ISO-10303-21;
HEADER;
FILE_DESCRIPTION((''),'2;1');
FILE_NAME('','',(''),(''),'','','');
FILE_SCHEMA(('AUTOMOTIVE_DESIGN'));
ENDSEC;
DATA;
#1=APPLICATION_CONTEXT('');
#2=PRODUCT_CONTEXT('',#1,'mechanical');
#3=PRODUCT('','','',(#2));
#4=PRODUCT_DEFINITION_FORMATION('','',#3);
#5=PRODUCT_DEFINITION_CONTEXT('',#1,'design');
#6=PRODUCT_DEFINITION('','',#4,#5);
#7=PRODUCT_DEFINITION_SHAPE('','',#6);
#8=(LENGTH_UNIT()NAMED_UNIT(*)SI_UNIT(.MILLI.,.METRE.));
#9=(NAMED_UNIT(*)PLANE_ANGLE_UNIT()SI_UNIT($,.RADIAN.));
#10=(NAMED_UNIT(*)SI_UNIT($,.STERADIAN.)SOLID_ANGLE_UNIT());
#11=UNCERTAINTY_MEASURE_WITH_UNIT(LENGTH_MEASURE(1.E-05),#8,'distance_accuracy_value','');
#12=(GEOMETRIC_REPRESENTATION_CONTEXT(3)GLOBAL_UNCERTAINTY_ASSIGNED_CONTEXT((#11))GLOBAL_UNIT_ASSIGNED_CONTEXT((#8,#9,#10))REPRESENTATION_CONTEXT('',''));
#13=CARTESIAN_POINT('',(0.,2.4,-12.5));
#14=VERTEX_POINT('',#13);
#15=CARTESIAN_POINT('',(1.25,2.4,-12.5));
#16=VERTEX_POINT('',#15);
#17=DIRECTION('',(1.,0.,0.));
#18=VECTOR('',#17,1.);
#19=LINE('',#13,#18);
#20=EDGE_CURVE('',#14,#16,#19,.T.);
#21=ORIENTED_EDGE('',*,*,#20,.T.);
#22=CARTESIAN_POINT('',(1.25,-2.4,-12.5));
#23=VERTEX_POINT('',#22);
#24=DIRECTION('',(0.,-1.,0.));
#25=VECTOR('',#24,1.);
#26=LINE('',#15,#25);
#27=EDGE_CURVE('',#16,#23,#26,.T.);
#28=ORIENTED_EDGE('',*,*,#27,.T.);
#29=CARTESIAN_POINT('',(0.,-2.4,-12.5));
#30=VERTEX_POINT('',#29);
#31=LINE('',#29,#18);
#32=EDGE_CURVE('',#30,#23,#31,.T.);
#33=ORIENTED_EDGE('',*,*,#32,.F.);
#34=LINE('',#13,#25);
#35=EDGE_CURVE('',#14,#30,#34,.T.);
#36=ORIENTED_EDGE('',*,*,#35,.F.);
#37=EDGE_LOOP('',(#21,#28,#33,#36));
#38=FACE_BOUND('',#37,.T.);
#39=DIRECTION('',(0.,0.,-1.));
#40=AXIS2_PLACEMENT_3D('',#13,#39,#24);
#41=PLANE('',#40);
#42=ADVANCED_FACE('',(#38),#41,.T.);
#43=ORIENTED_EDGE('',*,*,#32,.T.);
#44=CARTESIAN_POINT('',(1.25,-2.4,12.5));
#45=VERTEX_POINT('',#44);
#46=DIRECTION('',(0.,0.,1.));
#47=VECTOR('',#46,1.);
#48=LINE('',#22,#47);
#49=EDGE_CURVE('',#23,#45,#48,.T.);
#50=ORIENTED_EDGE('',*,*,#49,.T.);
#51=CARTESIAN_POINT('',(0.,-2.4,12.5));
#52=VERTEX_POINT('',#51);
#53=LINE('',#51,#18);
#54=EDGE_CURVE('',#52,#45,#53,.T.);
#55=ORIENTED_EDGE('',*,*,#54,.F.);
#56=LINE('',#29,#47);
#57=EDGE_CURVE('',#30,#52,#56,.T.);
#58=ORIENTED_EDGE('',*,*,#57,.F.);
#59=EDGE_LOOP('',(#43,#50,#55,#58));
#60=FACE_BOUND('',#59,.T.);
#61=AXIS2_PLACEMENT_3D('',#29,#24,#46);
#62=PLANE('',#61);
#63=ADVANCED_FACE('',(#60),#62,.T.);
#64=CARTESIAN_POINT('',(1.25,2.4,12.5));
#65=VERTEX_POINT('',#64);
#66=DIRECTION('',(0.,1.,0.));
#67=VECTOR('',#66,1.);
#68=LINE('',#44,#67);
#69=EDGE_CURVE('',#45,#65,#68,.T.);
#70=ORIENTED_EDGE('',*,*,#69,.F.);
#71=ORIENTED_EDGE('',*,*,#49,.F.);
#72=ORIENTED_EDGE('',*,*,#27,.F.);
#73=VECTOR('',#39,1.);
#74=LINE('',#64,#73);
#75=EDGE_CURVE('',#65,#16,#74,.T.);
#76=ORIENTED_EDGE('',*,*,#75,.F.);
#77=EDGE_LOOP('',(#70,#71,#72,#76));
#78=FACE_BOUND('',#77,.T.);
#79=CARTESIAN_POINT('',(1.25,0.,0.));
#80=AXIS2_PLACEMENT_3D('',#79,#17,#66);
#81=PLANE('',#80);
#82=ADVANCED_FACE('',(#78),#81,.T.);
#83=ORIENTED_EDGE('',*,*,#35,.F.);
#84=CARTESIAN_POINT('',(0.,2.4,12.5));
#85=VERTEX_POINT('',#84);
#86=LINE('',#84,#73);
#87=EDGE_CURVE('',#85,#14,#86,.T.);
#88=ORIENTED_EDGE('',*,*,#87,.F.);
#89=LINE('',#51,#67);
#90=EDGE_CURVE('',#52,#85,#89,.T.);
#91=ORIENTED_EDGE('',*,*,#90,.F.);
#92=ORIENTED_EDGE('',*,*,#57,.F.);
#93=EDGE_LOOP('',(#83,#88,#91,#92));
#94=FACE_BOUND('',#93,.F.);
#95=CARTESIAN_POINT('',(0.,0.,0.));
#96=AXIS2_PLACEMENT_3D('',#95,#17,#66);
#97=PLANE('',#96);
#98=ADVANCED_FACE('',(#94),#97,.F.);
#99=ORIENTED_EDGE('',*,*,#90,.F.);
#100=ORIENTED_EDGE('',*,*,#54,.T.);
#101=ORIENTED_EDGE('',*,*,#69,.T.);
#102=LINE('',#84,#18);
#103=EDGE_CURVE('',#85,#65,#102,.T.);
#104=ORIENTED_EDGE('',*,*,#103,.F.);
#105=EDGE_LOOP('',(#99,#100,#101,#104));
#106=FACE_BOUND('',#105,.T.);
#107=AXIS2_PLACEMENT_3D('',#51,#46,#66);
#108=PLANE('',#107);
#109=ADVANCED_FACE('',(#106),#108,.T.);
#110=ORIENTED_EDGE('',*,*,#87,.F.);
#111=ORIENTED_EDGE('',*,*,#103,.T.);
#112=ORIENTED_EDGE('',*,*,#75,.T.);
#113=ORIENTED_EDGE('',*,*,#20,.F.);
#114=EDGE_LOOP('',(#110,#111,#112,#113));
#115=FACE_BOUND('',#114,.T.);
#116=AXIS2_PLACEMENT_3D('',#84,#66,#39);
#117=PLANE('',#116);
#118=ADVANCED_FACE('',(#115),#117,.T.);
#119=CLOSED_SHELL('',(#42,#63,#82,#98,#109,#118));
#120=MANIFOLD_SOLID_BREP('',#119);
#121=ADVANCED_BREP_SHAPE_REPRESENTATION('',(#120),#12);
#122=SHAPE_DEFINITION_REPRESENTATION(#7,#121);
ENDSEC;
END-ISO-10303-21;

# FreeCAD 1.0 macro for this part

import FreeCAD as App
import Part
import Sketcher
Q = App.Units.Quantity


def add_polygon(sketch, points):
    """Adds a closed chain of lines whose ends are joined by coincident constraints."""
    first, n = sketch.GeometryCount, len(points)
    for a, b in zip(points, points[1:] + points[:1]):
        sketch.addGeometry(Part.LineSegment(App.Vector(*a, 0), App.Vector(*b, 0)), False)
    for i in range(n):
        sketch.addConstraint(Sketcher.Constraint("Coincident", first + i, 2, first + (i + 1) % n, 1))

doc = App.newDocument("Part")
params = doc.addObject("Spreadsheet::Sheet", "Params")
for row, (alias, value) in enumerate([
    ("sketch1_height", "25 mm"),
    ("sketch1_width", "4.8 mm"),
    ("pad1_length", "1.25 mm"),
], start=1):
    params.set(f"A{row}", alias)
    params.set(f"B{row}", "=" + value)
    params.setAlias(f"B{row}", alias)

body = doc.addObject("PartDesign::Body", "Body")

sketch1 = body.newObject("Sketcher::SketchObject", "Sketch")
sketch1.AttachmentSupport = (doc.getObject("YZ_Plane"), [""])
sketch1.MapMode = "FlatFace"
add_polygon(sketch1, [(-2.4, -12.5), (2.4, -12.5), (2.4, 12.5), (-2.4, 12.5)])
sketch1.addConstraint([
    Sketcher.Constraint("Horizontal", 0),
    Sketcher.Constraint("Vertical", 1),
    Sketcher.Constraint("Horizontal", 2),
    Sketcher.Constraint("Vertical", 3),
    Sketcher.Constraint("Symmetric", 0, 2, 2, 2, -1, 1),
    Sketcher.Constraint("DistanceY", 1, 1, 1, 2, Q("25 mm")),
    Sketcher.Constraint("DistanceX", 0, 1, 0, 2, Q("4.8 mm")),
])
sketch1.setExpression("Constraints[9]", "Params.sketch1_height")
sketch1.setExpression("Constraints[10]", "Params.sketch1_width")
pad1 = body.newObject("PartDesign::Pad", "Pad")
pad1.Profile = sketch1
pad1.setExpression("Length", "Params.pad1_length")

doc.recompute()
